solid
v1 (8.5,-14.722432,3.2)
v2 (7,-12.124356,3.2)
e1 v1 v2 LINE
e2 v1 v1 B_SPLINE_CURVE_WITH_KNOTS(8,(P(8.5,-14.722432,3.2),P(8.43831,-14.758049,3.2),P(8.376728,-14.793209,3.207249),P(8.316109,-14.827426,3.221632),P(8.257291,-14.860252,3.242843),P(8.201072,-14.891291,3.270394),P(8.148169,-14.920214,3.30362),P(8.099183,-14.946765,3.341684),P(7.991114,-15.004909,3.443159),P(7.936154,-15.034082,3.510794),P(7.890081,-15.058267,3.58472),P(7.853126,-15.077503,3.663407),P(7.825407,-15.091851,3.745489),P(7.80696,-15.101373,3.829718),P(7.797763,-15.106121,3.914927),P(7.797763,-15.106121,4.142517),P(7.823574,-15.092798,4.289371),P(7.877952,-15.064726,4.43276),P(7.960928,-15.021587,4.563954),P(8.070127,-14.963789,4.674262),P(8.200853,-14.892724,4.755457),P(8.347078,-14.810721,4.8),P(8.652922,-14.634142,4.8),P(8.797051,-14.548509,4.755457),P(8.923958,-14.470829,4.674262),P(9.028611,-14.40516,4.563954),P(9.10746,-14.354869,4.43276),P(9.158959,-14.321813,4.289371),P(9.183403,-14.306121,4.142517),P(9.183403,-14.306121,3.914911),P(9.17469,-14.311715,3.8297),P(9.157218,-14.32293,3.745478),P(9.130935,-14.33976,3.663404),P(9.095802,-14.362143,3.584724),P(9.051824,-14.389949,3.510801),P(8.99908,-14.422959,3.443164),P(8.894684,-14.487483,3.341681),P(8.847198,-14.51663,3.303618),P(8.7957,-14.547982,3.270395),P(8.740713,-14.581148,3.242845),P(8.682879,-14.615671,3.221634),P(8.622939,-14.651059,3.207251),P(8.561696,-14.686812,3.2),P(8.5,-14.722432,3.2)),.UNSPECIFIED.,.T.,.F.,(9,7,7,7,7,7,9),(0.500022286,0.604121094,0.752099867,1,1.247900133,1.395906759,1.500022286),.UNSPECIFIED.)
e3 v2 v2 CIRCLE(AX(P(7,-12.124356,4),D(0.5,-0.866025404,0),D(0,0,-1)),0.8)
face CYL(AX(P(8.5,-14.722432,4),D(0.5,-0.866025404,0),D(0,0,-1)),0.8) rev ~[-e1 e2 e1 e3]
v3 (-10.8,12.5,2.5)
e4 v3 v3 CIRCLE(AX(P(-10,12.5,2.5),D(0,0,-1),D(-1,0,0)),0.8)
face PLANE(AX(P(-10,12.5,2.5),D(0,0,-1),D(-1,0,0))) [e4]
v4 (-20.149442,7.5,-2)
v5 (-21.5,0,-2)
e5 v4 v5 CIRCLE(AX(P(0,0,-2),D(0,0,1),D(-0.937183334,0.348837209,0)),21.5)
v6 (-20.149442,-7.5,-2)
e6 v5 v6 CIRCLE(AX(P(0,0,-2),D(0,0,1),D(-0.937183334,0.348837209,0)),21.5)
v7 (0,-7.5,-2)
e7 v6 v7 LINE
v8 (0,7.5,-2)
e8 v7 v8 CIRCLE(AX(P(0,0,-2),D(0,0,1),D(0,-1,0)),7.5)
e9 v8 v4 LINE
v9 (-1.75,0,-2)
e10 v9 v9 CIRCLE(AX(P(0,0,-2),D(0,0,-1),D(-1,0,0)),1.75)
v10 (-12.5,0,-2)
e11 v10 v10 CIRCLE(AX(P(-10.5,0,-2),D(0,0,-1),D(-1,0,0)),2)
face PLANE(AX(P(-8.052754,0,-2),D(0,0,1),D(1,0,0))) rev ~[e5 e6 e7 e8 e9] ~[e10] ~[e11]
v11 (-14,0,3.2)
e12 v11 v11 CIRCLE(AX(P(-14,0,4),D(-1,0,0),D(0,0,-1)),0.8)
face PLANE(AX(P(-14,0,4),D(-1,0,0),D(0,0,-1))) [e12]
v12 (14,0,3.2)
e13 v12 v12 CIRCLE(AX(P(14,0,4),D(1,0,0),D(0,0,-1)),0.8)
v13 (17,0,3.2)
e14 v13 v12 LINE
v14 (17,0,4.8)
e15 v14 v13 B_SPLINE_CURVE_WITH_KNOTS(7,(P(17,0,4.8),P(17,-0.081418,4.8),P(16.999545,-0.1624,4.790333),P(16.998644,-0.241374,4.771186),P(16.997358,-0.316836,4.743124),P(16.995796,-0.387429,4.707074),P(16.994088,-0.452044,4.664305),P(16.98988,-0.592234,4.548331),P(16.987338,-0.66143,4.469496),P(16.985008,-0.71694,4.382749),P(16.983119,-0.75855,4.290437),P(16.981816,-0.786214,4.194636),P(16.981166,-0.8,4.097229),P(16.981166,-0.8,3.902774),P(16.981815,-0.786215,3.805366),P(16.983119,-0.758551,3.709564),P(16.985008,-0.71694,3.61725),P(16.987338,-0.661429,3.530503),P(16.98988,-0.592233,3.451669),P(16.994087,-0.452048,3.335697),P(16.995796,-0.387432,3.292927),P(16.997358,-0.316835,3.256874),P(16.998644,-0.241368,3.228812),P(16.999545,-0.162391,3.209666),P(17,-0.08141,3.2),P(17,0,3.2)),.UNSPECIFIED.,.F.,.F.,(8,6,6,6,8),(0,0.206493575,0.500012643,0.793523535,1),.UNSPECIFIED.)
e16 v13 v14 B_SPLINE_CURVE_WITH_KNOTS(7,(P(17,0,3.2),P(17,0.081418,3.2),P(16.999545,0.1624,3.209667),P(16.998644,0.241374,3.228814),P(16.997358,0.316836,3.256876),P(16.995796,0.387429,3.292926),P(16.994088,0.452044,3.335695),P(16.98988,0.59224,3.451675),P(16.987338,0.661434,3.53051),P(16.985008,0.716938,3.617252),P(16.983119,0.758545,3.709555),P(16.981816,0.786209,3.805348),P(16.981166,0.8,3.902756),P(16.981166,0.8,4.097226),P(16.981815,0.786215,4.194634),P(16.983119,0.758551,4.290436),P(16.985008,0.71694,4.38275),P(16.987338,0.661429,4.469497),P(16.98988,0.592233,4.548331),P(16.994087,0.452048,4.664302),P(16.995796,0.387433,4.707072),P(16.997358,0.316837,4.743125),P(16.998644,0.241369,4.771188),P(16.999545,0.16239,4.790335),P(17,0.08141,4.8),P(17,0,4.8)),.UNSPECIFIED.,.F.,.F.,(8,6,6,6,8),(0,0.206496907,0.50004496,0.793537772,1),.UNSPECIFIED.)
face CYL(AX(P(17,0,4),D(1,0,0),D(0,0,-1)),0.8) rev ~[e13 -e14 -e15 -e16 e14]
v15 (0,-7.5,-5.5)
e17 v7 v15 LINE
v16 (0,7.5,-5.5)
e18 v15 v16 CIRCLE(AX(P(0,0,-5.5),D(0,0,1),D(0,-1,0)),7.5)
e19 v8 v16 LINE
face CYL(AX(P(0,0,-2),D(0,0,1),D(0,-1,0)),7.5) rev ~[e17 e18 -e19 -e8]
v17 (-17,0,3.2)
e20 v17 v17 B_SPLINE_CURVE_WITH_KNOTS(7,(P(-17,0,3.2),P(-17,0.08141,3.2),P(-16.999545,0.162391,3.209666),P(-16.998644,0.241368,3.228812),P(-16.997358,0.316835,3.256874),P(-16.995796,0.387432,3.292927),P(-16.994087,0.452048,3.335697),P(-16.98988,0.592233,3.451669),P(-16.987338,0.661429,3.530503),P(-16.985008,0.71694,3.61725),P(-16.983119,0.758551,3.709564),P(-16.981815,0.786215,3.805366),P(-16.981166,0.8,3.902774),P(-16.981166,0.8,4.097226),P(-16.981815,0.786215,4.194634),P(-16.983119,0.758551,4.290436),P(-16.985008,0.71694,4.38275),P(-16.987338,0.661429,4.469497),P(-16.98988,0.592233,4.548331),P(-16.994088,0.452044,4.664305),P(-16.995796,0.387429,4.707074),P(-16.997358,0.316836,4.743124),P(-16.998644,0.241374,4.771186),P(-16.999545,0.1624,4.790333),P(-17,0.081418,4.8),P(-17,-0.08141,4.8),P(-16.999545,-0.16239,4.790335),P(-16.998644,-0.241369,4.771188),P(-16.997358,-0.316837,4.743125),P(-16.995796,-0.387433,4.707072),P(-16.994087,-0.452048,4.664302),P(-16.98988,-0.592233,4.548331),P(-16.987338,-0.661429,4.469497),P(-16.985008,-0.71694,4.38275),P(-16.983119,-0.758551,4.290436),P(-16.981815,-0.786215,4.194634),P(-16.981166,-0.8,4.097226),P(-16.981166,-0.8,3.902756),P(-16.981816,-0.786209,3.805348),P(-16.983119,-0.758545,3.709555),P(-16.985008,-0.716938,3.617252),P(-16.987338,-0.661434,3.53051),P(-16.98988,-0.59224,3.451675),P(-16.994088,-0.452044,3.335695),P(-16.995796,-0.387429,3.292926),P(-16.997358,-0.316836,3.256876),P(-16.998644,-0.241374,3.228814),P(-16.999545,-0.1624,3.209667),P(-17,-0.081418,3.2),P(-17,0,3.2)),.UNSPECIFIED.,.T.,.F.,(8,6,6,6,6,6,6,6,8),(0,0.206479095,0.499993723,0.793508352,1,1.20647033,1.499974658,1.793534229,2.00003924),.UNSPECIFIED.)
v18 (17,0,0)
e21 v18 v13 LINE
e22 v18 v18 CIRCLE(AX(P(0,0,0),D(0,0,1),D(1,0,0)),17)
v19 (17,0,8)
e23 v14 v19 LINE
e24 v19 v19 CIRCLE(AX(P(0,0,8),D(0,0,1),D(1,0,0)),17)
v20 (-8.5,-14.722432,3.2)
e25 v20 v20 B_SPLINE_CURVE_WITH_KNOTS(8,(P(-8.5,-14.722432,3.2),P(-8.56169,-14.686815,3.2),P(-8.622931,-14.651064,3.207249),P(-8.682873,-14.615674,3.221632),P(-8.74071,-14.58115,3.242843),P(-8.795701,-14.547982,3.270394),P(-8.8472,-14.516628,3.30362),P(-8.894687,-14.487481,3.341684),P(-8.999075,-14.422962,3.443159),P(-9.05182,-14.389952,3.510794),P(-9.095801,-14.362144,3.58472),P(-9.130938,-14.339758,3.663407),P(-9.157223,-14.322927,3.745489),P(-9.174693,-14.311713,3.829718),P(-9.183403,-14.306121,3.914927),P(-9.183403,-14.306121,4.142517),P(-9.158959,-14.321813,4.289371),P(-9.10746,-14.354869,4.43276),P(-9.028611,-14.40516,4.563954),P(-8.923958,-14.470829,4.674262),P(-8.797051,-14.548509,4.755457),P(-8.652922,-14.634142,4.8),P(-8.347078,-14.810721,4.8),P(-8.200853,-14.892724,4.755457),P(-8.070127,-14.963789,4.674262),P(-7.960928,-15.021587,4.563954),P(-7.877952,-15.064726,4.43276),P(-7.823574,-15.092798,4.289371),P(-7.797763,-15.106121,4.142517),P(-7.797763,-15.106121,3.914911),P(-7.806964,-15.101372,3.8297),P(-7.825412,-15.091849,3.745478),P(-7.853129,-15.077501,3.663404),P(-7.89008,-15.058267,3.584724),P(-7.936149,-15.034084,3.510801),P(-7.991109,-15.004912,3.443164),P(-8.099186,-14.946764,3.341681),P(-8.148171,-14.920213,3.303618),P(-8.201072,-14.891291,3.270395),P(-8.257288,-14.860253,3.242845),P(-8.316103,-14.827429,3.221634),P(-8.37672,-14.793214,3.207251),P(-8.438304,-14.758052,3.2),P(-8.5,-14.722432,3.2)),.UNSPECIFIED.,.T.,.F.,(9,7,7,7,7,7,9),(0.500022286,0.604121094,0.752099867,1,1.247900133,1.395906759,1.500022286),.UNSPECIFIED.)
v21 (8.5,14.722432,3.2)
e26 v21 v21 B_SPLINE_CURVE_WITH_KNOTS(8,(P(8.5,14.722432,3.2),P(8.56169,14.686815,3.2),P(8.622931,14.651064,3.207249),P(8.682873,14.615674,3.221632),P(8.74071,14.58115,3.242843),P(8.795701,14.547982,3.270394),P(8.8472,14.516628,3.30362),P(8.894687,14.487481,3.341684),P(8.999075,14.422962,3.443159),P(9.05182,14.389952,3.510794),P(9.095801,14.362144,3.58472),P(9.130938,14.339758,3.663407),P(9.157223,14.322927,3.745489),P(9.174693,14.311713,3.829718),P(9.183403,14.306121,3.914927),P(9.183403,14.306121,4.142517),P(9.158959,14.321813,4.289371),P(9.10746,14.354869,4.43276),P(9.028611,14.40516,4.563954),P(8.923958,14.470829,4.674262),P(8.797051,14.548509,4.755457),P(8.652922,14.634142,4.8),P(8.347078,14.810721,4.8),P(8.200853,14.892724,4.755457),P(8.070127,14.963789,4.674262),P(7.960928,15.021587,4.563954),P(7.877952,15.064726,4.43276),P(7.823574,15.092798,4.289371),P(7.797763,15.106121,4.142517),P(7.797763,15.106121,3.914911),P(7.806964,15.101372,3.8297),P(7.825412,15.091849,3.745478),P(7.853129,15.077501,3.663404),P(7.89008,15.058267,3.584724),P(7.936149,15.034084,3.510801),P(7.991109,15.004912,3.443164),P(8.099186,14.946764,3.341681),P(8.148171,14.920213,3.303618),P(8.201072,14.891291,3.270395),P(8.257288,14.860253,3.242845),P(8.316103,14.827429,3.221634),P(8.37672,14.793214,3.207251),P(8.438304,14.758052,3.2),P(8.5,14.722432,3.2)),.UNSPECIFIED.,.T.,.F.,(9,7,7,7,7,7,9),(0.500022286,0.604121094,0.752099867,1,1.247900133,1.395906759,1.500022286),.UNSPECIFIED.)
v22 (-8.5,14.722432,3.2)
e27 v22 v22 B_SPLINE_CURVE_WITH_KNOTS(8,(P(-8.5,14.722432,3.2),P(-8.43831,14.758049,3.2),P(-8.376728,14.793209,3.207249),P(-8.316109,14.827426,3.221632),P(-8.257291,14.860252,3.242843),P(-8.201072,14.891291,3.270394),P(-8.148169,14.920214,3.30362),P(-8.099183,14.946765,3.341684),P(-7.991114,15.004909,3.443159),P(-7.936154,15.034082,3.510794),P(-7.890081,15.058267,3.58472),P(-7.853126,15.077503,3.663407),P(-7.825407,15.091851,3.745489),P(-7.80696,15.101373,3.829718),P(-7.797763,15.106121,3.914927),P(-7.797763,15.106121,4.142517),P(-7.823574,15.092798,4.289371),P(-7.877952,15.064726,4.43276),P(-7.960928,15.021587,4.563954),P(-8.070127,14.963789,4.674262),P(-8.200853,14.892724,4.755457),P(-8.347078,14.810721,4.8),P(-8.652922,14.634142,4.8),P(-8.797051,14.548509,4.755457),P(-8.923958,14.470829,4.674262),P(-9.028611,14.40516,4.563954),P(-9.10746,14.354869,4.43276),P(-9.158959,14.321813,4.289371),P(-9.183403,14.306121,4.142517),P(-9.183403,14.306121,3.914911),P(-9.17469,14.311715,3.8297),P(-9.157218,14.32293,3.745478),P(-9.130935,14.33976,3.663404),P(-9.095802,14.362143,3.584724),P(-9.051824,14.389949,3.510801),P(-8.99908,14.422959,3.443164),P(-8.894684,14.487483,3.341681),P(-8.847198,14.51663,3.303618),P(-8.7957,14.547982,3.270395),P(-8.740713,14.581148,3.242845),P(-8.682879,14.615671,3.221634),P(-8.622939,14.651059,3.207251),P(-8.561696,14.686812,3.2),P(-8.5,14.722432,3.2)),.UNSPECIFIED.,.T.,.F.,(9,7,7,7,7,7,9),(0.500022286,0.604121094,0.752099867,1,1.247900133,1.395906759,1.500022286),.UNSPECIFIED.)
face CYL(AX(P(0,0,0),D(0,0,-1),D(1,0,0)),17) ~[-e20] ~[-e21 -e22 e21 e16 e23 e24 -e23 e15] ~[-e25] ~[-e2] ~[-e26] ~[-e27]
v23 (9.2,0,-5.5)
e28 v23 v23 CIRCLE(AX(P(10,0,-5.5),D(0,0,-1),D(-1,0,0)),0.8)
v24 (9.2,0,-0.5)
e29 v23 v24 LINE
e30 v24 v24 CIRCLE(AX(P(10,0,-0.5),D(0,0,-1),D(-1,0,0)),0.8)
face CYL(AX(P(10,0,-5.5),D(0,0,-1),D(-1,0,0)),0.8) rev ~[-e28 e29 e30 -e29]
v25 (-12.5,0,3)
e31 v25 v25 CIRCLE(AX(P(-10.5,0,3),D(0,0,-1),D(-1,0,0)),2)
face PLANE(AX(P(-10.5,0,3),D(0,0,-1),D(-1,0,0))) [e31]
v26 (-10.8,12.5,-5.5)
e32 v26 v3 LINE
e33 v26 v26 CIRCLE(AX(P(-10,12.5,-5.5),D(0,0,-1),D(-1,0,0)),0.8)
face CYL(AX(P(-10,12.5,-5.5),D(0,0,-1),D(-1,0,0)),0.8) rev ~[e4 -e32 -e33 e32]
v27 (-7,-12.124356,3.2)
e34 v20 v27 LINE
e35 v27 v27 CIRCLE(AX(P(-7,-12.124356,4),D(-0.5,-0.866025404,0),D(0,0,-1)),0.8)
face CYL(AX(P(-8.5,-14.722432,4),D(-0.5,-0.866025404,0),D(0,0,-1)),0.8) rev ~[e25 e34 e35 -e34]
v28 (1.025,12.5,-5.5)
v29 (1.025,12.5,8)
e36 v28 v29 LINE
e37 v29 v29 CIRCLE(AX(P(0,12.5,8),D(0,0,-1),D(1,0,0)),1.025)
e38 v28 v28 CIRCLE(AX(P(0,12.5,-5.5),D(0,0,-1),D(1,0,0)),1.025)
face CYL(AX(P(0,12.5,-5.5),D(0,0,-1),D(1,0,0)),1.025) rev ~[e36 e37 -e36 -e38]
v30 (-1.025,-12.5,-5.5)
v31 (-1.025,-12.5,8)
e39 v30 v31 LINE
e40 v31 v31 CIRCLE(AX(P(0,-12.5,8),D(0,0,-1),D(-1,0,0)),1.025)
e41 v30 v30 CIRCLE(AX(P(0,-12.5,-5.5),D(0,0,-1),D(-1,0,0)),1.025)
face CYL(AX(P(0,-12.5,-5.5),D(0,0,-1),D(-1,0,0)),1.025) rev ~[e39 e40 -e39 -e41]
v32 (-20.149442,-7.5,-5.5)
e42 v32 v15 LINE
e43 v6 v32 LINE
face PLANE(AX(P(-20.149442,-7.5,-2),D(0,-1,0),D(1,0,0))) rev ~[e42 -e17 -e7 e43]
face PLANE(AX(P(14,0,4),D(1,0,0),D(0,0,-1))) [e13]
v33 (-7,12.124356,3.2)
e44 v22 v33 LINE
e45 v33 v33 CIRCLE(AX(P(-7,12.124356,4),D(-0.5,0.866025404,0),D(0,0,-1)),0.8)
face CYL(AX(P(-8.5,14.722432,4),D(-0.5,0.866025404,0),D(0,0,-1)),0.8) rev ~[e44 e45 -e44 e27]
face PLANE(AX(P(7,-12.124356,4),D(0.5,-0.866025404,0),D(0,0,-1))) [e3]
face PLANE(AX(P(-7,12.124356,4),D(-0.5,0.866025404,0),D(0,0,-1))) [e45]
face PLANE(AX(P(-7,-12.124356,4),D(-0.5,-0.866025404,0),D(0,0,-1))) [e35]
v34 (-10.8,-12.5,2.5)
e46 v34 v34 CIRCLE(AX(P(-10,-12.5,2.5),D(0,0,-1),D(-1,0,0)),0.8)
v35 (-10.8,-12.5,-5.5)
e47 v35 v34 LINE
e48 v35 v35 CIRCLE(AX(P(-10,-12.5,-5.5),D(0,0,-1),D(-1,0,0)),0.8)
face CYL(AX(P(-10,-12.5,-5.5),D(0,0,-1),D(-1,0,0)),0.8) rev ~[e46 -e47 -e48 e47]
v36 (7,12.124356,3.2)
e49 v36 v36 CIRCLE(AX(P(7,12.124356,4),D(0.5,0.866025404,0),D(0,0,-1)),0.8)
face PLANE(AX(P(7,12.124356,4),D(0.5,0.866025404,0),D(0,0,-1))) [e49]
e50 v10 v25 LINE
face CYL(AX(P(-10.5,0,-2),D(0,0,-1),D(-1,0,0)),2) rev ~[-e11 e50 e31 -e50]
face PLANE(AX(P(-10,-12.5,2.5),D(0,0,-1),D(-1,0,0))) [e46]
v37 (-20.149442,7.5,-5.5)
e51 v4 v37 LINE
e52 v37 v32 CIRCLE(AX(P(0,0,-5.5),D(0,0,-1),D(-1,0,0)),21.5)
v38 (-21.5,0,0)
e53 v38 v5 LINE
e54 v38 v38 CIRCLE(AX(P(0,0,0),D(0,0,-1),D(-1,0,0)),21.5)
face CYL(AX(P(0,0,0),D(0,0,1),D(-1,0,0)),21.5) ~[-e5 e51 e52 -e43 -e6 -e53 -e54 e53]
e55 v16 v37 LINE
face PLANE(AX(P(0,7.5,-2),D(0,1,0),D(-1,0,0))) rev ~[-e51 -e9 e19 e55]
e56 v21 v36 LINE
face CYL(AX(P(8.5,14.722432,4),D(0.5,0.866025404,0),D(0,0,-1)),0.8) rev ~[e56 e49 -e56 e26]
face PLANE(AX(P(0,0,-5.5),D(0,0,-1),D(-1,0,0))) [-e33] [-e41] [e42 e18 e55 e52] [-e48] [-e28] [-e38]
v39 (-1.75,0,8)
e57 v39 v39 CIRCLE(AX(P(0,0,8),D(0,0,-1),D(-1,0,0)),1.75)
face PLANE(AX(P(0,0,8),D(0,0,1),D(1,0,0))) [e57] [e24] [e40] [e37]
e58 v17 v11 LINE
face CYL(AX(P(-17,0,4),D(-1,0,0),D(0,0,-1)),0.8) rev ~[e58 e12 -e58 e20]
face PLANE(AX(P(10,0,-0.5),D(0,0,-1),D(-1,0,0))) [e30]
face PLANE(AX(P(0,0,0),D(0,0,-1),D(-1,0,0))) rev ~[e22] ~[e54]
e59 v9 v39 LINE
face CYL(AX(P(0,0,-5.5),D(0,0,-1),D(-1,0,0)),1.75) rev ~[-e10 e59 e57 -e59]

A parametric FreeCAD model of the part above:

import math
import FreeCAD as App
import Part
import Sketcher
Q = App.Units.Quantity

doc = App.newDocument("Part")
body = doc.addObject("PartDesign::Body", "Body")

# Sketch on XY plane
sketch1 = doc.addObject("Sketcher::SketchObject", "Sketch")
body.addObject(sketch1)
sketch1.AttachmentSupport = (doc.XY_Plane, [""])
sketch1.MapMode = "FlatFace"
sketch1.addGeometry(Part.Circle(App.Vector(0, 0, 0), App.Vector(0, 0, 1), 17), False)
sketch1.addConstraint([
    Sketcher.Constraint("Coincident", 0, 3, -1, 1),
    Sketcher.Constraint("Diameter", 0, Q("34 mm")),
])
pad1 = doc.addObject("PartDesign::Pad", "Pad")
body.addObject(pad1)
pad1.Profile = sketch1
pad1.Length = 8

# Sketch on XY plane
sketch2 = doc.addObject("Sketcher::SketchObject", "Sketch001")
body.addObject(sketch2)
sketch2.AttachmentSupport = (doc.XY_Plane, [""])
sketch2.MapMode = "FlatFace"
sketch2.addGeometry(Part.Circle(App.Vector(0, 0, 0), App.Vector(0, 0, 1), 21.5), False)
sketch2.addConstraint([
    Sketcher.Constraint("Coincident", 0, 3, -1, 1),
    Sketcher.Constraint("Diameter", 0, Q("43 mm")),
])
pad2 = doc.addObject("PartDesign::Pad", "Pad001")
body.addObject(pad2)
pad2.Profile = sketch2
pad2.Length = 5.5
pad2.Reversed = True

# Sketch on XY plane
sketch3 = doc.addObject("Sketcher::SketchObject", "Sketch002")
body.addObject(sketch3)
sketch3.AttachmentSupport = (doc.XY_Plane, [""])
sketch3.MapMode = "FlatFace"
sketch3.AttachmentOffset = App.Placement(App.Vector(0, 0, -5.5), App.Rotation())
sketch3.addGeometry(Part.Circle(App.Vector(0, 0, 0), App.Vector(0, 0, 1), 1.75), False)
sketch3.addConstraint([
    Sketcher.Constraint("Coincident", 0, 3, -1, 1),
    Sketcher.Constraint("Diameter", 0, Q("3.5 mm")),
])
pocket1 = doc.addObject("PartDesign::Pocket", "Pocket")
body.addObject(pocket1)
pocket1.Profile = sketch3
pocket1.Type = "ThroughAll"
pocket1.Reversed = True

# Sketch on XY plane
sketch4 = doc.addObject("Sketcher::SketchObject", "Sketch003")
body.addObject(sketch4)
sketch4.AttachmentSupport = (doc.XY_Plane, [""])
sketch4.MapMode = "FlatFace"
sketch4.AttachmentOffset = App.Placement(App.Vector(0, 0, -2), App.Rotation())
sketch4.addGeometry([
    Part.LineSegment(App.Vector(-20.149442, 7.5, 0), App.Vector(0, 7.5, 0)),
    Part.ArcOfCircle(Part.Circle(App.Vector(0, 0, 0), App.Vector(0, 0, 1), 7.5), math.radians(-90), math.radians(90)),
    Part.LineSegment(App.Vector(0, -7.5, 0), App.Vector(-20.149442, -7.5, 0)),
    Part.ArcOfCircle(Part.Circle(App.Vector(0, 0, 0), App.Vector(0, 0, 1), 21.5), math.radians(159.58379), math.radians(200.41621)),
], False)
sketch4.addConstraint([
    Sketcher.Constraint("Tangent", 0, 2, 1, 2),
    Sketcher.Constraint("Tangent", 1, 1, 2, 1),
    Sketcher.Constraint("Coincident", 2, 2, 3, 2),
    Sketcher.Constraint("Coincident", 3, 1, 0, 1),
    Sketcher.Constraint("Horizontal", 0),
    Sketcher.Constraint("Horizontal", 2),
    Sketcher.Constraint("Coincident", 1, 3, -1, 1),
    Sketcher.Constraint("Coincident", 3, 3, -1, 1),
    Sketcher.Constraint("Radius", 1, Q("7.5 mm")),
    Sketcher.Constraint("Radius", 3, Q("21.5 mm")),
])
pocket2 = doc.addObject("PartDesign::Pocket", "Pocket001")
body.addObject(pocket2)
pocket2.Profile = sketch4
pocket2.Length = 3.5

# Sketch on XY plane
sketch5 = doc.addObject("Sketcher::SketchObject", "Sketch004")
body.addObject(sketch5)
sketch5.AttachmentSupport = (doc.XY_Plane, [""])
sketch5.MapMode = "FlatFace"
sketch5.AttachmentOffset = App.Placement(App.Vector(0, 0, -5.5), App.Rotation())
sketch5.addGeometry([
    Part.Circle(App.Vector(0, -12.5, 0), App.Vector(0, 0, 1), 1.025),
    Part.Circle(App.Vector(0, 12.5, 0), App.Vector(0, 0, 1), 1.025),
], False)
sketch5.addConstraint([
    Sketcher.Constraint("Equal", 0, 1),
    Sketcher.Constraint("Symmetric", 0, 3, 1, 3, -1, 1),
    Sketcher.Constraint("PointOnObject", 0, 3, -2),
    Sketcher.Constraint("Diameter", 0, Q("2.05 mm")),
    Sketcher.Constraint("DistanceY", 0, 3, 1, 3, Q("25 mm")),
])
pocket3 = doc.addObject("PartDesign::Pocket", "Pocket002")
body.addObject(pocket3)
pocket3.Profile = sketch5
pocket3.Type = "ThroughAll"
pocket3.Reversed = True

# Sketch on XY plane
sketch6 = doc.addObject("Sketcher::SketchObject", "Sketch005")
body.addObject(sketch6)
sketch6.AttachmentSupport = (doc.XY_Plane, [""])
sketch6.MapMode = "FlatFace"
sketch6.AttachmentOffset = App.Placement(App.Vector(0, 0, -5.5), App.Rotation())
sketch6.addGeometry([
    Part.Circle(App.Vector(-10, -12.5, 0), App.Vector(0, 0, 1), 0.8),
    Part.Circle(App.Vector(-10, 12.5, 0), App.Vector(0, 0, 1), 0.8),
], False)
sketch6.addConstraint([
    Sketcher.Constraint("Equal", 0, 1),
    Sketcher.Constraint("Symmetric", 0, 3, 1, 3, -1),
    Sketcher.Constraint("Diameter", 0, Q("1.6 mm")),
    Sketcher.Constraint("DistanceX", 0, 3, -1, 1, Q("10 mm")),
    Sketcher.Constraint("DistanceY", 0, 3, 1, 3, Q("25 mm")),
])
pocket4 = doc.addObject("PartDesign::Pocket", "Pocket003")
body.addObject(pocket4)
pocket4.Profile = sketch6
pocket4.Length = 8
pocket4.Reversed = True

# Sketch on YZ plane
sketch7 = doc.addObject("Sketcher::SketchObject", "Sketch006")
body.addObject(sketch7)
sketch7.AttachmentSupport = (doc.YZ_Plane, [""])
sketch7.MapMode = "FlatFace"
sketch7.AttachmentOffset = App.Placement(App.Vector(0, 0, 17), App.Rotation())
sketch7.addGeometry(Part.Circle(App.Vector(0, 4, 0), App.Vector(0, 0, 1), 0.8), False)
sketch7.addConstraint([
    Sketcher.Constraint("PointOnObject", 0, 3, -2),
    Sketcher.Constraint("Diameter", 0, Q("1.6 mm")),
    Sketcher.Constraint("DistanceY", -1, 1, 0, 3, Q("4 mm")),
])
pocket5 = doc.addObject("PartDesign::Pocket", "Pocket004")
body.addObject(pocket5)
pocket5.Profile = sketch7
pocket5.Length = 3
doc.recompute()

polarpattern = doc.addObject("PartDesign::PolarPattern", "PolarPattern")
body.addObject(polarpattern)
polarpattern.Originals = [pocket5]
polarpattern.Axis = (doc.Z_Axis, [""])
polarpattern.Angle = 360
polarpattern.Occurrences = 6
body.Tip = polarpattern

# Sketch on XY plane
sketch8 = doc.addObject("Sketcher::SketchObject", "Sketch007")
body.addObject(sketch8)
sketch8.AttachmentSupport = (doc.XY_Plane, [""])
sketch8.MapMode = "FlatFace"
sketch8.AttachmentOffset = App.Placement(App.Vector(0, 0, -2), App.Rotation())
sketch8.addGeometry(Part.Circle(App.Vector(-10.5, 0, 0), App.Vector(0, 0, 1), 2), False)
sketch8.addConstraint([
    Sketcher.Constraint("PointOnObject", 0, 3, -1),
    Sketcher.Constraint("Diameter", 0, Q("4 mm")),
    Sketcher.Constraint("DistanceX", 0, 3, -1, 1, Q("10.5 mm")),
])
pocket6 = doc.addObject("PartDesign::Pocket", "Pocket005")
body.addObject(pocket6)
pocket6.Profile = sketch8
pocket6.Length = 5
pocket6.Reversed = True

# Sketch on XY plane
sketch9 = doc.addObject("Sketcher::SketchObject", "Sketch008")
body.addObject(sketch9)
sketch9.AttachmentSupport = (doc.XY_Plane, [""])
sketch9.MapMode = "FlatFace"
sketch9.AttachmentOffset = App.Placement(App.Vector(0, 0, -5.5), App.Rotation())
sketch9.addGeometry(Part.Circle(App.Vector(10, 0, 0), App.Vector(0, 0, 1), 0.8), False)
sketch9.addConstraint([
    Sketcher.Constraint("PointOnObject", 0, 3, -1),
    Sketcher.Constraint("Diameter", 0, Q("1.6 mm")),
    Sketcher.Constraint("DistanceX", -1, 1, 0, 3, Q("10 mm")),
])
pocket7 = doc.addObject("PartDesign::Pocket", "Pocket006")
body.addObject(pocket7)
pocket7.Profile = sketch9
pocket7.Length = 5
pocket7.Reversed = True

doc.recompute()
